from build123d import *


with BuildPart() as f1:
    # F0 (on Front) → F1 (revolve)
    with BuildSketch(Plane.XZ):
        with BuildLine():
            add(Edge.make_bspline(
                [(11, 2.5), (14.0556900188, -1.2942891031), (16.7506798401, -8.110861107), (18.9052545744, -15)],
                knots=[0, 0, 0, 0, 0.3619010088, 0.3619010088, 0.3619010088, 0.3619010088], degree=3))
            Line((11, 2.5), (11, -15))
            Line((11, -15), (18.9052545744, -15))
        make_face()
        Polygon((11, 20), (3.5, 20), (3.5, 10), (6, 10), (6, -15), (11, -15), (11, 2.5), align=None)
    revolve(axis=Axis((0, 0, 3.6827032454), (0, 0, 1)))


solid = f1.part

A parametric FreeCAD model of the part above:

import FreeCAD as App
import Part
import Sketcher
from FreeCAD import Vector

doc = App.newDocument("Part")
params = doc.addObject("Spreadsheet::Sheet", "Params")
for row, (alias, value) in enumerate([
    ("sketch1_height", "10 mm"),
    ("sketch1_height2", "25 mm"),
    ("sketch1_width", "7.5 mm"),
    ("sketch1_width2", "2.5 mm"),
    ("revolution_angle", "360 deg"),
], start=1):
    params.set(f"A{row}", alias)
    params.set(f"B{row}", "=" + value)
    params.setAlias(f"B{row}", alias)

body = doc.addObject("PartDesign::Body", "Body")

# Sketch on XZ plane
sketch1 = body.newObject("Sketcher::SketchObject", "Sketch")
sketch1.AttachmentSupport = (doc.getObject("XZ_Plane"), [""])
sketch1.MapMode = "FlatFace"
sketch1.addGeometry([
    Part.BSplineCurve([Vector(11, 2.5, 0), Vector(14.05569, -1.294289, 0), Vector(16.75068, -8.110861, 0), Vector(18.905255, -15, 0)], [4, 4], [0, 0.361901009], False, 3, [1, 1, 1, 1], False),  # 0
    Part.LineSegment(Vector(11, 2.5, 0), Vector(11, 20, 0)),  # 1
    Part.LineSegment(Vector(11, 20, 0), Vector(3.5, 20, 0)),  # 2
    Part.LineSegment(Vector(3.5, 20, 0), Vector(3.5, 10, 0)),  # 3
    Part.LineSegment(Vector(3.5, 10, 0), Vector(6, 10, 0)),  # 4
    Part.LineSegment(Vector(6, 10, 0), Vector(6, -15, 0)),  # 5
    Part.LineSegment(Vector(6, -15, 0), Vector(18.905255, -15, 0)),  # 6
], False)
sketch1.addConstraint([
    Sketcher.Constraint("Block", 0),
    Sketcher.Constraint("Coincident", 0, 1, 1, 1),
    Sketcher.Constraint("Coincident", 1, 2, 2, 1),
    Sketcher.Constraint("Coincident", 2, 2, 3, 1),
    Sketcher.Constraint("Coincident", 3, 2, 4, 1),
    Sketcher.Constraint("Coincident", 4, 2, 5, 1),
    Sketcher.Constraint("Coincident", 5, 2, 6, 1),
    Sketcher.Constraint("Coincident", 6, 2, 0, 2),
    Sketcher.Constraint("Vertical", 1),
    Sketcher.Constraint("Horizontal", 2),
    Sketcher.Constraint("Vertical", 3),
    Sketcher.Constraint("Horizontal", 4),
    Sketcher.Constraint("Vertical", 5),
    Sketcher.Constraint("Horizontal", 6),
    Sketcher.Constraint("DistanceY", 3, 2, 3, 1, 10.0),
    Sketcher.Constraint("DistanceY", 5, 2, 5, 1, 25.0),
    Sketcher.Constraint("DistanceX", 2, 2, 2, 1, 7.5),
    Sketcher.Constraint("DistanceX", 4, 1, 4, 2, 2.5),
])
sketch1.setExpression("Constraints[14]", "Params.sketch1_height")
sketch1.setExpression("Constraints[15]", "Params.sketch1_height2")
sketch1.setExpression("Constraints[16]", "Params.sketch1_width")
sketch1.setExpression("Constraints[17]", "Params.sketch1_width2")
revolution = body.newObject("PartDesign::Revolution", "Revolution")
revolution.Profile = sketch1
revolution.ReferenceAxis = (sketch1, ["V_Axis"])
revolution.setExpression("Angle", "Params.revolution_angle")

doc.recompute()
